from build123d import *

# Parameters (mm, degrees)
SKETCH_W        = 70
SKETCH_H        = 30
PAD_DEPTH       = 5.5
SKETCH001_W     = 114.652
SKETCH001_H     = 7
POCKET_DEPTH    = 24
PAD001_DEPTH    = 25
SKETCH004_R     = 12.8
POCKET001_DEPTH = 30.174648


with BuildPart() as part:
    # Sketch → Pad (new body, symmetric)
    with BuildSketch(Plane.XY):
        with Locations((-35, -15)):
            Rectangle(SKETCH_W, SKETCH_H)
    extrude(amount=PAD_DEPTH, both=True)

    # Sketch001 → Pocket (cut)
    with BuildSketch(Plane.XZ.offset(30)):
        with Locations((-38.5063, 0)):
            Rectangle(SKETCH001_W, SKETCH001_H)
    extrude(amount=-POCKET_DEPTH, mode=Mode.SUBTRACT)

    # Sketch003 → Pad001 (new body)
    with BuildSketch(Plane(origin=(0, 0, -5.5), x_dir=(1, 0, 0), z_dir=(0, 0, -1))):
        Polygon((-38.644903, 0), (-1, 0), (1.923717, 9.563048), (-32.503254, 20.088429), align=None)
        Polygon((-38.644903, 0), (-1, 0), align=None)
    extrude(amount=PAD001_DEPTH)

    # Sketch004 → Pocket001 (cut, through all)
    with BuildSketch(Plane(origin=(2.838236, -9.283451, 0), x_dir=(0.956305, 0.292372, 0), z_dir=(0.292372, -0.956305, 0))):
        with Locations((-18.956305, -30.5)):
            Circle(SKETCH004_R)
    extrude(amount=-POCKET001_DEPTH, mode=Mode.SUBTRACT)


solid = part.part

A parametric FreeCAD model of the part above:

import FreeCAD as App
import Part
import Sketcher

V = App.Vector
Q = App.Units.Quantity


def add_polygon(sketch, points):
    """Adds a closed chain of lines whose ends are joined by coincident constraints."""
    first, n = sketch.GeometryCount, len(points)
    for a, b in zip(points, points[1:] + points[:1]):
        sketch.addGeometry(Part.LineSegment(App.Vector(*a, 0), App.Vector(*b, 0)), False)
    for i in range(n):
        sketch.addConstraint(Sketcher.Constraint("Coincident", first + i, 2, first + (i + 1) % n, 1))

doc = App.newDocument("Part")
params = doc.addObject("Spreadsheet::Sheet", "Params")
for row, (alias, value) in enumerate([
    ("sketch1_width", "70 mm"),
    ("sketch1_height", "30 mm"),
    ("pad1_length", "11 mm"),
    ("sketch2_height", "7 mm"),
    ("pocket1_length", "24 mm"),
    ("sketch3_length", "10 mm"),
    ("sketch3_length2", "36 mm"),
    ("pad2_length", "25 mm"),
    ("sketch4_diameter", "25.6 mm"),
], start=1):
    params.set(f"A{row}", alias)
    params.set(f"B{row}", "=" + value)
    params.setAlias(f"B{row}", alias)

body = doc.addObject("PartDesign::Body", "Body")

# Sketch on XY plane
sketch1 = doc.addObject("Sketcher::SketchObject", "Sketch")
body.addObject(sketch1)
sketch1.AttachmentSupport = (doc.XY_Plane, [""])
sketch1.MapMode = "FlatFace"
add_polygon(sketch1, [(-70, 0), (-70, -30), (0, -30), (0, 0)])  # lines 0-3
sketch1.addConstraint([
    Sketcher.Constraint("Vertical", 0),
    Sketcher.Constraint("Horizontal", 1),
    Sketcher.Constraint("Vertical", 2),
    Sketcher.Constraint("Horizontal", 3),
    Sketcher.Constraint("Coincident", 2, 2, -1, 1),
    Sketcher.Constraint("DistanceX", 1, 1, 1, 2, Q("70 mm")),
    Sketcher.Constraint("DistanceY", 0, 2, 0, 1, Q("30 mm")),
])
sketch1.setExpression("Constraints[9]", "Params.sketch1_width")
sketch1.setExpression("Constraints[10]", "Params.sketch1_height")
pad1 = doc.addObject("PartDesign::Pad", "Pad")
body.addObject(pad1)
pad1.Profile = sketch1
pad1.setExpression("Length", "Params.pad1_length")
pad1.Midplane = True

# Sketch on XZ plane
sketch2 = doc.addObject("Sketcher::SketchObject", "Sketch001")
body.addObject(sketch2)
sketch2.AttachmentSupport = (doc.XZ_Plane, [""])
sketch2.MapMode = "FlatFace"
sketch2.AttachmentOffset = App.Placement(V(0, 0, 30), App.Rotation())
add_polygon(sketch2, [(-96, 4), (-96, -4), (19, -4), (19, 4)])  # lines 0-3
sketch2.addConstraint([
    Sketcher.Constraint("Vertical", 0),
    Sketcher.Constraint("Horizontal", 1),
    Sketcher.Constraint("Vertical", 2),
    Sketcher.Constraint("Horizontal", 3),
    Sketcher.Constraint("DistanceY", 0, 2, 0, 1, Q("7 mm")),
    Sketcher.Constraint("DistanceY", 0, 2, -1, 1, Q("3.5 mm")),
    Sketcher.Constraint("DistanceX", 1, 1, 1, 2, Q("114.652 mm")),
    Sketcher.Constraint("DistanceX", 0, 2, -1, 1, Q("95.8323 mm")),
])
sketch2.setExpression("Constraints[8]", "Params.sketch2_height")
pocket1 = doc.addObject("PartDesign::Pocket", "Pocket")
body.addObject(pocket1)
pocket1.Profile = sketch2
pocket1.setExpression("Length", "Params.pocket1_length")

# Sketch on XY plane
sketch3 = doc.addObject("Sketcher::SketchObject", "Sketch002")
body.addObject(sketch3)
sketch3.AttachmentSupport = (doc.XY_Plane, [""])
sketch3.MapMode = "FlatFace"
sketch3.AttachmentOffset = App.Placement(V(0, 0, -5.5), App.Rotation())
add_polygon(sketch3, [(-39, 0), (-1, 0), (2, -10), (-33, -20)])  # lines 0-3
sketch3.addConstraint([
    Sketcher.Constraint("Horizontal", 0),
    Sketcher.Constraint("PointOnObject", 0, 2, -1),
    Sketcher.Constraint("Perpendicular", 1, 2),
    Sketcher.Constraint("Perpendicular", 2, 3),
    Sketcher.Constraint("Angle", 1, Q("-73.000001 deg")),
    Sketcher.Constraint("Distance", 1, Q("10 mm")),
    Sketcher.Constraint("Distance", 2, Q("36 mm")),
    Sketcher.Constraint("DistanceX", 0, 2, -1, 1, Q("1 mm")),
])
sketch3.setExpression("Constraints[9]", "Params.sketch3_length")
sketch3.setExpression("Constraints[10]", "Params.sketch3_length2")
pad2 = doc.addObject("PartDesign::Pad", "Pad001")
body.addObject(pad2)
pad2.Profile = sketch3
pad2.setExpression("Length", "Params.pad2_length")
pad2.Reversed = True

# Sketch on an angled plane
sketch4 = doc.addObject("Sketcher::SketchObject", "Sketch003")
body.addObject(sketch4)
sketch4.Placement = App.Placement(V(2.838236, -9.283451, 0), App.Rotation(V(0.956304694, 0.292371907, 0), V(0, 0, 1), V(0.292371907, -0.956304694, 0), "ZXY"))
sketch4.addGeometry(Part.Circle(V(-19, -30, 0), V(0, 0, 1), 13), False)
sketch4.addConstraint([
    Sketcher.Constraint("Diameter", 0, Q("25.6 mm")),
    Sketcher.Constraint("DistanceY", 0, 3, -1, 1, Q("30.5 mm")),
    Sketcher.Constraint("DistanceX", 0, 3, -1, 1, Q("18.956305 mm")),
])
sketch4.setExpression("Constraints[0]", "Params.sketch4_diameter")
pocket2 = doc.addObject("PartDesign::Pocket", "Pocket001")
body.addObject(pocket2)
pocket2.Profile = sketch4
pocket2.Type = "ThroughAll"

doc.recompute()
